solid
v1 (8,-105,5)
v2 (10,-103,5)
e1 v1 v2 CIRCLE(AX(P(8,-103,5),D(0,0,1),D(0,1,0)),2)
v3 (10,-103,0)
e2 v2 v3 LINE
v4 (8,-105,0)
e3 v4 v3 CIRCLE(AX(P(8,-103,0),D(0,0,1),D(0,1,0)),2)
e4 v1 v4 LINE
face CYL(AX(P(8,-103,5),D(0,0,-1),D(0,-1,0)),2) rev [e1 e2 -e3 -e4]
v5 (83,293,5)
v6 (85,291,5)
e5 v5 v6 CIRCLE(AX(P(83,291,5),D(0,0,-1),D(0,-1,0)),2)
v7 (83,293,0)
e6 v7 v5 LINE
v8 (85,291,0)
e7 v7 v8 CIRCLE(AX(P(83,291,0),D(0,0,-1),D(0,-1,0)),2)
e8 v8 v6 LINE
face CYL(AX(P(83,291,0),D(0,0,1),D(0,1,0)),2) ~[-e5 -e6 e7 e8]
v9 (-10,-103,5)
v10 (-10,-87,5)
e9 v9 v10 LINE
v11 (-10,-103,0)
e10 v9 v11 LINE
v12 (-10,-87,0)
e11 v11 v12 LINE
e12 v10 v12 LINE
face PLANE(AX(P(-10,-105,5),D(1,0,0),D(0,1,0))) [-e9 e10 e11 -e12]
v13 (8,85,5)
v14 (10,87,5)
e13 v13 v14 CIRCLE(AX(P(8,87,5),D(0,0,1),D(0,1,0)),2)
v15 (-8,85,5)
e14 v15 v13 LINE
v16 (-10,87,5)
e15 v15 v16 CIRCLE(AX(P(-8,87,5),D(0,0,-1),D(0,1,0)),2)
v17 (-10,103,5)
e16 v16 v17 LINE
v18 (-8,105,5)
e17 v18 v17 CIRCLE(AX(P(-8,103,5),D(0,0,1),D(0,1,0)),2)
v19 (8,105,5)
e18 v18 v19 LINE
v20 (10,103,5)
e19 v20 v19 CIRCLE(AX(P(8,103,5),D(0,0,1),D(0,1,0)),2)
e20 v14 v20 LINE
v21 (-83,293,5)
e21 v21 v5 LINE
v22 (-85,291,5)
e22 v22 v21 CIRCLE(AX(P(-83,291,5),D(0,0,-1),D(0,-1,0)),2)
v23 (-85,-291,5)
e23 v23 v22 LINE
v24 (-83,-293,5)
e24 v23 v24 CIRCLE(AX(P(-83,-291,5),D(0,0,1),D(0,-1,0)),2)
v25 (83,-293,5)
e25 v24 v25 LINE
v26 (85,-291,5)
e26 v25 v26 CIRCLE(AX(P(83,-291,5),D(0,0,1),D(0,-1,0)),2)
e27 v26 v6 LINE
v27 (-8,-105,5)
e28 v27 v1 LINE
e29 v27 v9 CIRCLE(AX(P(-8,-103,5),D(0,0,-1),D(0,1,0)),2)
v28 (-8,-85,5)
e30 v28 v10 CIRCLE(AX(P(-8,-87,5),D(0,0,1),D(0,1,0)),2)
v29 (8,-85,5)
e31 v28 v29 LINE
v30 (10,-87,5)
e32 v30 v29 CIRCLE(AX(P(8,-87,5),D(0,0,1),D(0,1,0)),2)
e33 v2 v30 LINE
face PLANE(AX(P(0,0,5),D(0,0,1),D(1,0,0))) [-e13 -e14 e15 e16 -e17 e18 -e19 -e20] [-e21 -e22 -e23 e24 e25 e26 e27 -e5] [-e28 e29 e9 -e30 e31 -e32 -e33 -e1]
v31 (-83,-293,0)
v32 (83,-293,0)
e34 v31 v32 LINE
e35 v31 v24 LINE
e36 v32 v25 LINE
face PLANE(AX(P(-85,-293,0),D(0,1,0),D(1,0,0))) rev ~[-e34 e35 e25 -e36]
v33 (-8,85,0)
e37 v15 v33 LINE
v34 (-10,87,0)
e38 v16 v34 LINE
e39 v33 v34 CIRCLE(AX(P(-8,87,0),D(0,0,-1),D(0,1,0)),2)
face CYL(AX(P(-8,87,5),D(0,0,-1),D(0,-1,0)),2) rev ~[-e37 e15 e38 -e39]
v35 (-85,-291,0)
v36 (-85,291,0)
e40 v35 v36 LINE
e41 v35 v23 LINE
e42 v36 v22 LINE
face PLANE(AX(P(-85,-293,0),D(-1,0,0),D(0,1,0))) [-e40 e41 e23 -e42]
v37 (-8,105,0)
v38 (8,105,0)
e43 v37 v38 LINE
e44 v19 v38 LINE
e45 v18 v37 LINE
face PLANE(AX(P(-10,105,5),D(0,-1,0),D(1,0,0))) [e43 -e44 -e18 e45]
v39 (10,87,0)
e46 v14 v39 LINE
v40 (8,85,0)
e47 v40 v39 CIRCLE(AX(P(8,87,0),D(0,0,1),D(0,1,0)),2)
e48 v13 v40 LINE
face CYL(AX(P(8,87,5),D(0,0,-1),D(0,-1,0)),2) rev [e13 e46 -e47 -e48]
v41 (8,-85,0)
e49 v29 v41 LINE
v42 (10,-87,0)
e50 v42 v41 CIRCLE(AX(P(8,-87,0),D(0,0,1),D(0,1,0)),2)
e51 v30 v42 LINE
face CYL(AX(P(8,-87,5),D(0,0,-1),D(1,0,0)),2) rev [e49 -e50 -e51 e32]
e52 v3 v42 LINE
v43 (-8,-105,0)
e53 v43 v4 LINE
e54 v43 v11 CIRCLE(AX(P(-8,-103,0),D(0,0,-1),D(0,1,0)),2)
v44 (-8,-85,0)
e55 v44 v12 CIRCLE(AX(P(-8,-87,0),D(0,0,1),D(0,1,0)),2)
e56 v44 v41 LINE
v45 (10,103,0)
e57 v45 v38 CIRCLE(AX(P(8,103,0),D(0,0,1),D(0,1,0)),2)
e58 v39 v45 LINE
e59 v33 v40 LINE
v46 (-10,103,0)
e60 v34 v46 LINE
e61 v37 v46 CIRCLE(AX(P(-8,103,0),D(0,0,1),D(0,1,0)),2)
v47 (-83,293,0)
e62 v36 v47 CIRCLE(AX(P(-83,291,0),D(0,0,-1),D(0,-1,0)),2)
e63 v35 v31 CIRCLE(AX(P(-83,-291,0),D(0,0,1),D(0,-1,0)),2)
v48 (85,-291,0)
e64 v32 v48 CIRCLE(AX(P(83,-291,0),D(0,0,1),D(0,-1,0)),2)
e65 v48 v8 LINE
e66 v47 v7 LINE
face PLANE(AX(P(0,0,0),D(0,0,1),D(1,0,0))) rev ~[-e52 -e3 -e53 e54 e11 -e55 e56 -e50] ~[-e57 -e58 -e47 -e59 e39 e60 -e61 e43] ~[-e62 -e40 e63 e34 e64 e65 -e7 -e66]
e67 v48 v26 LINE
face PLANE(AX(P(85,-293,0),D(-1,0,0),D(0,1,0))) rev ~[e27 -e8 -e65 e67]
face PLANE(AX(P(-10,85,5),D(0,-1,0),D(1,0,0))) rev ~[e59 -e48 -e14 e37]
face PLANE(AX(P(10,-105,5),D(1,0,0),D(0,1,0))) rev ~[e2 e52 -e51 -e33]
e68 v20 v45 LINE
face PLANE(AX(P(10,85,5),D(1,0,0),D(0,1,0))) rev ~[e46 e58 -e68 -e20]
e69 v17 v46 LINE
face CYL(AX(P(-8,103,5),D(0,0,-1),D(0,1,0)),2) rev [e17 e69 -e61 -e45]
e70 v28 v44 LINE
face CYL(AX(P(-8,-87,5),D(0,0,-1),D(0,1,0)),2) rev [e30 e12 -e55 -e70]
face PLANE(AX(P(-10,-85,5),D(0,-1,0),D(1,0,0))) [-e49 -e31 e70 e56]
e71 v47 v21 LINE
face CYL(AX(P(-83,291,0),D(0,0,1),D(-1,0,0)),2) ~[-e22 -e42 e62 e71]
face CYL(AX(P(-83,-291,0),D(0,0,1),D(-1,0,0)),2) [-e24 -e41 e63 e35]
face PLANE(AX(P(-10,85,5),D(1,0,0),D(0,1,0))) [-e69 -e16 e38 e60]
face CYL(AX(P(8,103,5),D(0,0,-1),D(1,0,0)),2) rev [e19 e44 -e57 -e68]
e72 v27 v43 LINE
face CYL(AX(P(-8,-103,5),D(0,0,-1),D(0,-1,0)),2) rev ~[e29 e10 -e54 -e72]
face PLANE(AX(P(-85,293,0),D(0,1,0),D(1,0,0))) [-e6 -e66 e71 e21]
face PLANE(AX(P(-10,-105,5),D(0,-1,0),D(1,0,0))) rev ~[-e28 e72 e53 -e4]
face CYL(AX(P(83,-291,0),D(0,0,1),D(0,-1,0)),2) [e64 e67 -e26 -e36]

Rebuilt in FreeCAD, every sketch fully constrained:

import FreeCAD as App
import Part
import Sketcher
from FreeCAD import Vector
Q = App.Units.Quantity


def edges_at(feature, points):
    """Names of the edges that pass closest to the given points."""
    edges = feature.Shape.Edges
    near = lambda p: min(range(len(edges)), key=lambda i: edges[i].distToShape(Part.Vertex(*p))[0])
    return sorted({f"Edge{near(p) + 1}" for p in points})


def add_polygon(sketch, points):
    """Adds a closed chain of lines whose ends are joined by coincident constraints."""
    first, n = sketch.GeometryCount, len(points)
    for a, b in zip(points, points[1:] + points[:1]):
        sketch.addGeometry(Part.LineSegment(App.Vector(*a, 0), App.Vector(*b, 0)), False)
    for i in range(n):
        sketch.addConstraint(Sketcher.Constraint("Coincident", first + i, 2, first + (i + 1) % n, 1))

doc = App.newDocument("Part")
params = doc.addObject("Spreadsheet::Sheet", "Params")
for row, (alias, value) in enumerate([
    ("sketch1_width", "170 mm"),
    ("sketch1_height", "586 mm"),
    ("pad1_length", "5 mm"),
    ("sketch2_width", "20 mm"),
    ("pocket1_length", "25 mm"),
    ("fillet_radius", "2 mm"),
], start=1):
    params.set(f"A{row}", alias)
    params.set(f"B{row}", "=" + value)
    params.setAlias(f"B{row}", alias)

body = doc.addObject("PartDesign::Body", "Body")

sketch1 = doc.addObject("Sketcher::SketchObject", "Sketch")
body.addObject(sketch1)
sketch1.AttachmentSupport = (doc.XY_Plane, [""])
sketch1.MapMode = "FlatFace"
add_polygon(sketch1, [(-85, 293), (-85, -293), (85, -293), (85, 293)])
sketch1.addConstraint(Sketcher.Constraint("Vertical", 0))
sketch1.addConstraint(Sketcher.Constraint("Horizontal", 1))
sketch1.addConstraint(Sketcher.Constraint("Vertical", 2))
sketch1.addConstraint(Sketcher.Constraint("Horizontal", 3))
sketch1.addConstraint(Sketcher.Constraint("Symmetric", 0, 2, 2, 2, -1, 1))
sketch1.addConstraint(Sketcher.Constraint("DistanceX", 1, 1, 1, 2, Q("170 mm")))
sketch1.addConstraint(Sketcher.Constraint("DistanceY", 0, 2, 0, 1, Q("586 mm")))
sketch1.setExpression("Constraints[9]", "Params.sketch1_width")
sketch1.setExpression("Constraints[10]", "Params.sketch1_height")
pad1 = doc.addObject("PartDesign::Pad", "Pad")
body.addObject(pad1)
pad1.Profile = sketch1
pad1.setExpression("Length", "Params.pad1_length")

sketch2 = doc.addObject("Sketcher::SketchObject", "Sketch001")
body.addObject(sketch2)
sketch2.AttachmentSupport = (doc.XY_Plane, [""])
sketch2.MapMode = "FlatFace"
sketch2.AttachmentOffset = App.Placement(Vector(0, 0, 5), App.Rotation())
add_polygon(sketch2, [(-10, 105), (-10, 85), (10, 85), (10, 105)])
add_polygon(sketch2, [(-10, -85), (-10, -105), (10, -105), (10, -85)])
sketch2.addConstraint(Sketcher.Constraint("Vertical", 0))
sketch2.addConstraint(Sketcher.Constraint("Horizontal", 1))
sketch2.addConstraint(Sketcher.Constraint("Vertical", 2))
sketch2.addConstraint(Sketcher.Constraint("Horizontal", 3))
sketch2.addConstraint(Sketcher.Constraint("Vertical", 4))
sketch2.addConstraint(Sketcher.Constraint("Horizontal", 5))
sketch2.addConstraint(Sketcher.Constraint("Vertical", 6))
sketch2.addConstraint(Sketcher.Constraint("Horizontal", 7))
sketch2.addConstraint(Sketcher.Constraint("Symmetric", 2, 2, 4, 2, -1, 1))
sketch2.addConstraint(Sketcher.Constraint("Symmetric", 0, 2, 6, 2, -1, 1))
sketch2.addConstraint(Sketcher.Constraint("Vertical", 3, 2, 4, 2))
sketch2.addConstraint(Sketcher.Constraint("Equal", 7, 0))
sketch2.addConstraint(Sketcher.Constraint("DistanceX", 1, 1, 1, 2, Q("20 mm")))
sketch2.addConstraint(Sketcher.Constraint("DistanceY", -1, 1, 0, 2, Q("85 mm")))
sketch2.setExpression("Constraints[20]", "Params.sketch2_width")
pocket1 = doc.addObject("PartDesign::Pocket", "Pocket")
body.addObject(pocket1)
pocket1.Profile = sketch2
pocket1.setExpression("Length", "Params.pocket1_length")
doc.recompute()

fillet = doc.addObject("PartDesign::Fillet", "Fillet")
body.addObject(fillet)
fillet.Base = (pocket1, edges_at(pocket1, [
    (-85, -293, 2.5),
    (85, -293, 2.5),
    (85, 293, 2.5),
    (-10, 105, 2.5),
    (-10, -85, 2.5),
    (-10, 85, 2.5),
    (-10, -105, 2.5),
    (10, 105, 2.5),
    (-85, 293, 2.5),
    (10, -85, 2.5),
    (10, -105, 2.5),
    (10, 85, 2.5),
]))
fillet.setExpression("Radius", "Params.fillet_radius")

doc.recompute()
